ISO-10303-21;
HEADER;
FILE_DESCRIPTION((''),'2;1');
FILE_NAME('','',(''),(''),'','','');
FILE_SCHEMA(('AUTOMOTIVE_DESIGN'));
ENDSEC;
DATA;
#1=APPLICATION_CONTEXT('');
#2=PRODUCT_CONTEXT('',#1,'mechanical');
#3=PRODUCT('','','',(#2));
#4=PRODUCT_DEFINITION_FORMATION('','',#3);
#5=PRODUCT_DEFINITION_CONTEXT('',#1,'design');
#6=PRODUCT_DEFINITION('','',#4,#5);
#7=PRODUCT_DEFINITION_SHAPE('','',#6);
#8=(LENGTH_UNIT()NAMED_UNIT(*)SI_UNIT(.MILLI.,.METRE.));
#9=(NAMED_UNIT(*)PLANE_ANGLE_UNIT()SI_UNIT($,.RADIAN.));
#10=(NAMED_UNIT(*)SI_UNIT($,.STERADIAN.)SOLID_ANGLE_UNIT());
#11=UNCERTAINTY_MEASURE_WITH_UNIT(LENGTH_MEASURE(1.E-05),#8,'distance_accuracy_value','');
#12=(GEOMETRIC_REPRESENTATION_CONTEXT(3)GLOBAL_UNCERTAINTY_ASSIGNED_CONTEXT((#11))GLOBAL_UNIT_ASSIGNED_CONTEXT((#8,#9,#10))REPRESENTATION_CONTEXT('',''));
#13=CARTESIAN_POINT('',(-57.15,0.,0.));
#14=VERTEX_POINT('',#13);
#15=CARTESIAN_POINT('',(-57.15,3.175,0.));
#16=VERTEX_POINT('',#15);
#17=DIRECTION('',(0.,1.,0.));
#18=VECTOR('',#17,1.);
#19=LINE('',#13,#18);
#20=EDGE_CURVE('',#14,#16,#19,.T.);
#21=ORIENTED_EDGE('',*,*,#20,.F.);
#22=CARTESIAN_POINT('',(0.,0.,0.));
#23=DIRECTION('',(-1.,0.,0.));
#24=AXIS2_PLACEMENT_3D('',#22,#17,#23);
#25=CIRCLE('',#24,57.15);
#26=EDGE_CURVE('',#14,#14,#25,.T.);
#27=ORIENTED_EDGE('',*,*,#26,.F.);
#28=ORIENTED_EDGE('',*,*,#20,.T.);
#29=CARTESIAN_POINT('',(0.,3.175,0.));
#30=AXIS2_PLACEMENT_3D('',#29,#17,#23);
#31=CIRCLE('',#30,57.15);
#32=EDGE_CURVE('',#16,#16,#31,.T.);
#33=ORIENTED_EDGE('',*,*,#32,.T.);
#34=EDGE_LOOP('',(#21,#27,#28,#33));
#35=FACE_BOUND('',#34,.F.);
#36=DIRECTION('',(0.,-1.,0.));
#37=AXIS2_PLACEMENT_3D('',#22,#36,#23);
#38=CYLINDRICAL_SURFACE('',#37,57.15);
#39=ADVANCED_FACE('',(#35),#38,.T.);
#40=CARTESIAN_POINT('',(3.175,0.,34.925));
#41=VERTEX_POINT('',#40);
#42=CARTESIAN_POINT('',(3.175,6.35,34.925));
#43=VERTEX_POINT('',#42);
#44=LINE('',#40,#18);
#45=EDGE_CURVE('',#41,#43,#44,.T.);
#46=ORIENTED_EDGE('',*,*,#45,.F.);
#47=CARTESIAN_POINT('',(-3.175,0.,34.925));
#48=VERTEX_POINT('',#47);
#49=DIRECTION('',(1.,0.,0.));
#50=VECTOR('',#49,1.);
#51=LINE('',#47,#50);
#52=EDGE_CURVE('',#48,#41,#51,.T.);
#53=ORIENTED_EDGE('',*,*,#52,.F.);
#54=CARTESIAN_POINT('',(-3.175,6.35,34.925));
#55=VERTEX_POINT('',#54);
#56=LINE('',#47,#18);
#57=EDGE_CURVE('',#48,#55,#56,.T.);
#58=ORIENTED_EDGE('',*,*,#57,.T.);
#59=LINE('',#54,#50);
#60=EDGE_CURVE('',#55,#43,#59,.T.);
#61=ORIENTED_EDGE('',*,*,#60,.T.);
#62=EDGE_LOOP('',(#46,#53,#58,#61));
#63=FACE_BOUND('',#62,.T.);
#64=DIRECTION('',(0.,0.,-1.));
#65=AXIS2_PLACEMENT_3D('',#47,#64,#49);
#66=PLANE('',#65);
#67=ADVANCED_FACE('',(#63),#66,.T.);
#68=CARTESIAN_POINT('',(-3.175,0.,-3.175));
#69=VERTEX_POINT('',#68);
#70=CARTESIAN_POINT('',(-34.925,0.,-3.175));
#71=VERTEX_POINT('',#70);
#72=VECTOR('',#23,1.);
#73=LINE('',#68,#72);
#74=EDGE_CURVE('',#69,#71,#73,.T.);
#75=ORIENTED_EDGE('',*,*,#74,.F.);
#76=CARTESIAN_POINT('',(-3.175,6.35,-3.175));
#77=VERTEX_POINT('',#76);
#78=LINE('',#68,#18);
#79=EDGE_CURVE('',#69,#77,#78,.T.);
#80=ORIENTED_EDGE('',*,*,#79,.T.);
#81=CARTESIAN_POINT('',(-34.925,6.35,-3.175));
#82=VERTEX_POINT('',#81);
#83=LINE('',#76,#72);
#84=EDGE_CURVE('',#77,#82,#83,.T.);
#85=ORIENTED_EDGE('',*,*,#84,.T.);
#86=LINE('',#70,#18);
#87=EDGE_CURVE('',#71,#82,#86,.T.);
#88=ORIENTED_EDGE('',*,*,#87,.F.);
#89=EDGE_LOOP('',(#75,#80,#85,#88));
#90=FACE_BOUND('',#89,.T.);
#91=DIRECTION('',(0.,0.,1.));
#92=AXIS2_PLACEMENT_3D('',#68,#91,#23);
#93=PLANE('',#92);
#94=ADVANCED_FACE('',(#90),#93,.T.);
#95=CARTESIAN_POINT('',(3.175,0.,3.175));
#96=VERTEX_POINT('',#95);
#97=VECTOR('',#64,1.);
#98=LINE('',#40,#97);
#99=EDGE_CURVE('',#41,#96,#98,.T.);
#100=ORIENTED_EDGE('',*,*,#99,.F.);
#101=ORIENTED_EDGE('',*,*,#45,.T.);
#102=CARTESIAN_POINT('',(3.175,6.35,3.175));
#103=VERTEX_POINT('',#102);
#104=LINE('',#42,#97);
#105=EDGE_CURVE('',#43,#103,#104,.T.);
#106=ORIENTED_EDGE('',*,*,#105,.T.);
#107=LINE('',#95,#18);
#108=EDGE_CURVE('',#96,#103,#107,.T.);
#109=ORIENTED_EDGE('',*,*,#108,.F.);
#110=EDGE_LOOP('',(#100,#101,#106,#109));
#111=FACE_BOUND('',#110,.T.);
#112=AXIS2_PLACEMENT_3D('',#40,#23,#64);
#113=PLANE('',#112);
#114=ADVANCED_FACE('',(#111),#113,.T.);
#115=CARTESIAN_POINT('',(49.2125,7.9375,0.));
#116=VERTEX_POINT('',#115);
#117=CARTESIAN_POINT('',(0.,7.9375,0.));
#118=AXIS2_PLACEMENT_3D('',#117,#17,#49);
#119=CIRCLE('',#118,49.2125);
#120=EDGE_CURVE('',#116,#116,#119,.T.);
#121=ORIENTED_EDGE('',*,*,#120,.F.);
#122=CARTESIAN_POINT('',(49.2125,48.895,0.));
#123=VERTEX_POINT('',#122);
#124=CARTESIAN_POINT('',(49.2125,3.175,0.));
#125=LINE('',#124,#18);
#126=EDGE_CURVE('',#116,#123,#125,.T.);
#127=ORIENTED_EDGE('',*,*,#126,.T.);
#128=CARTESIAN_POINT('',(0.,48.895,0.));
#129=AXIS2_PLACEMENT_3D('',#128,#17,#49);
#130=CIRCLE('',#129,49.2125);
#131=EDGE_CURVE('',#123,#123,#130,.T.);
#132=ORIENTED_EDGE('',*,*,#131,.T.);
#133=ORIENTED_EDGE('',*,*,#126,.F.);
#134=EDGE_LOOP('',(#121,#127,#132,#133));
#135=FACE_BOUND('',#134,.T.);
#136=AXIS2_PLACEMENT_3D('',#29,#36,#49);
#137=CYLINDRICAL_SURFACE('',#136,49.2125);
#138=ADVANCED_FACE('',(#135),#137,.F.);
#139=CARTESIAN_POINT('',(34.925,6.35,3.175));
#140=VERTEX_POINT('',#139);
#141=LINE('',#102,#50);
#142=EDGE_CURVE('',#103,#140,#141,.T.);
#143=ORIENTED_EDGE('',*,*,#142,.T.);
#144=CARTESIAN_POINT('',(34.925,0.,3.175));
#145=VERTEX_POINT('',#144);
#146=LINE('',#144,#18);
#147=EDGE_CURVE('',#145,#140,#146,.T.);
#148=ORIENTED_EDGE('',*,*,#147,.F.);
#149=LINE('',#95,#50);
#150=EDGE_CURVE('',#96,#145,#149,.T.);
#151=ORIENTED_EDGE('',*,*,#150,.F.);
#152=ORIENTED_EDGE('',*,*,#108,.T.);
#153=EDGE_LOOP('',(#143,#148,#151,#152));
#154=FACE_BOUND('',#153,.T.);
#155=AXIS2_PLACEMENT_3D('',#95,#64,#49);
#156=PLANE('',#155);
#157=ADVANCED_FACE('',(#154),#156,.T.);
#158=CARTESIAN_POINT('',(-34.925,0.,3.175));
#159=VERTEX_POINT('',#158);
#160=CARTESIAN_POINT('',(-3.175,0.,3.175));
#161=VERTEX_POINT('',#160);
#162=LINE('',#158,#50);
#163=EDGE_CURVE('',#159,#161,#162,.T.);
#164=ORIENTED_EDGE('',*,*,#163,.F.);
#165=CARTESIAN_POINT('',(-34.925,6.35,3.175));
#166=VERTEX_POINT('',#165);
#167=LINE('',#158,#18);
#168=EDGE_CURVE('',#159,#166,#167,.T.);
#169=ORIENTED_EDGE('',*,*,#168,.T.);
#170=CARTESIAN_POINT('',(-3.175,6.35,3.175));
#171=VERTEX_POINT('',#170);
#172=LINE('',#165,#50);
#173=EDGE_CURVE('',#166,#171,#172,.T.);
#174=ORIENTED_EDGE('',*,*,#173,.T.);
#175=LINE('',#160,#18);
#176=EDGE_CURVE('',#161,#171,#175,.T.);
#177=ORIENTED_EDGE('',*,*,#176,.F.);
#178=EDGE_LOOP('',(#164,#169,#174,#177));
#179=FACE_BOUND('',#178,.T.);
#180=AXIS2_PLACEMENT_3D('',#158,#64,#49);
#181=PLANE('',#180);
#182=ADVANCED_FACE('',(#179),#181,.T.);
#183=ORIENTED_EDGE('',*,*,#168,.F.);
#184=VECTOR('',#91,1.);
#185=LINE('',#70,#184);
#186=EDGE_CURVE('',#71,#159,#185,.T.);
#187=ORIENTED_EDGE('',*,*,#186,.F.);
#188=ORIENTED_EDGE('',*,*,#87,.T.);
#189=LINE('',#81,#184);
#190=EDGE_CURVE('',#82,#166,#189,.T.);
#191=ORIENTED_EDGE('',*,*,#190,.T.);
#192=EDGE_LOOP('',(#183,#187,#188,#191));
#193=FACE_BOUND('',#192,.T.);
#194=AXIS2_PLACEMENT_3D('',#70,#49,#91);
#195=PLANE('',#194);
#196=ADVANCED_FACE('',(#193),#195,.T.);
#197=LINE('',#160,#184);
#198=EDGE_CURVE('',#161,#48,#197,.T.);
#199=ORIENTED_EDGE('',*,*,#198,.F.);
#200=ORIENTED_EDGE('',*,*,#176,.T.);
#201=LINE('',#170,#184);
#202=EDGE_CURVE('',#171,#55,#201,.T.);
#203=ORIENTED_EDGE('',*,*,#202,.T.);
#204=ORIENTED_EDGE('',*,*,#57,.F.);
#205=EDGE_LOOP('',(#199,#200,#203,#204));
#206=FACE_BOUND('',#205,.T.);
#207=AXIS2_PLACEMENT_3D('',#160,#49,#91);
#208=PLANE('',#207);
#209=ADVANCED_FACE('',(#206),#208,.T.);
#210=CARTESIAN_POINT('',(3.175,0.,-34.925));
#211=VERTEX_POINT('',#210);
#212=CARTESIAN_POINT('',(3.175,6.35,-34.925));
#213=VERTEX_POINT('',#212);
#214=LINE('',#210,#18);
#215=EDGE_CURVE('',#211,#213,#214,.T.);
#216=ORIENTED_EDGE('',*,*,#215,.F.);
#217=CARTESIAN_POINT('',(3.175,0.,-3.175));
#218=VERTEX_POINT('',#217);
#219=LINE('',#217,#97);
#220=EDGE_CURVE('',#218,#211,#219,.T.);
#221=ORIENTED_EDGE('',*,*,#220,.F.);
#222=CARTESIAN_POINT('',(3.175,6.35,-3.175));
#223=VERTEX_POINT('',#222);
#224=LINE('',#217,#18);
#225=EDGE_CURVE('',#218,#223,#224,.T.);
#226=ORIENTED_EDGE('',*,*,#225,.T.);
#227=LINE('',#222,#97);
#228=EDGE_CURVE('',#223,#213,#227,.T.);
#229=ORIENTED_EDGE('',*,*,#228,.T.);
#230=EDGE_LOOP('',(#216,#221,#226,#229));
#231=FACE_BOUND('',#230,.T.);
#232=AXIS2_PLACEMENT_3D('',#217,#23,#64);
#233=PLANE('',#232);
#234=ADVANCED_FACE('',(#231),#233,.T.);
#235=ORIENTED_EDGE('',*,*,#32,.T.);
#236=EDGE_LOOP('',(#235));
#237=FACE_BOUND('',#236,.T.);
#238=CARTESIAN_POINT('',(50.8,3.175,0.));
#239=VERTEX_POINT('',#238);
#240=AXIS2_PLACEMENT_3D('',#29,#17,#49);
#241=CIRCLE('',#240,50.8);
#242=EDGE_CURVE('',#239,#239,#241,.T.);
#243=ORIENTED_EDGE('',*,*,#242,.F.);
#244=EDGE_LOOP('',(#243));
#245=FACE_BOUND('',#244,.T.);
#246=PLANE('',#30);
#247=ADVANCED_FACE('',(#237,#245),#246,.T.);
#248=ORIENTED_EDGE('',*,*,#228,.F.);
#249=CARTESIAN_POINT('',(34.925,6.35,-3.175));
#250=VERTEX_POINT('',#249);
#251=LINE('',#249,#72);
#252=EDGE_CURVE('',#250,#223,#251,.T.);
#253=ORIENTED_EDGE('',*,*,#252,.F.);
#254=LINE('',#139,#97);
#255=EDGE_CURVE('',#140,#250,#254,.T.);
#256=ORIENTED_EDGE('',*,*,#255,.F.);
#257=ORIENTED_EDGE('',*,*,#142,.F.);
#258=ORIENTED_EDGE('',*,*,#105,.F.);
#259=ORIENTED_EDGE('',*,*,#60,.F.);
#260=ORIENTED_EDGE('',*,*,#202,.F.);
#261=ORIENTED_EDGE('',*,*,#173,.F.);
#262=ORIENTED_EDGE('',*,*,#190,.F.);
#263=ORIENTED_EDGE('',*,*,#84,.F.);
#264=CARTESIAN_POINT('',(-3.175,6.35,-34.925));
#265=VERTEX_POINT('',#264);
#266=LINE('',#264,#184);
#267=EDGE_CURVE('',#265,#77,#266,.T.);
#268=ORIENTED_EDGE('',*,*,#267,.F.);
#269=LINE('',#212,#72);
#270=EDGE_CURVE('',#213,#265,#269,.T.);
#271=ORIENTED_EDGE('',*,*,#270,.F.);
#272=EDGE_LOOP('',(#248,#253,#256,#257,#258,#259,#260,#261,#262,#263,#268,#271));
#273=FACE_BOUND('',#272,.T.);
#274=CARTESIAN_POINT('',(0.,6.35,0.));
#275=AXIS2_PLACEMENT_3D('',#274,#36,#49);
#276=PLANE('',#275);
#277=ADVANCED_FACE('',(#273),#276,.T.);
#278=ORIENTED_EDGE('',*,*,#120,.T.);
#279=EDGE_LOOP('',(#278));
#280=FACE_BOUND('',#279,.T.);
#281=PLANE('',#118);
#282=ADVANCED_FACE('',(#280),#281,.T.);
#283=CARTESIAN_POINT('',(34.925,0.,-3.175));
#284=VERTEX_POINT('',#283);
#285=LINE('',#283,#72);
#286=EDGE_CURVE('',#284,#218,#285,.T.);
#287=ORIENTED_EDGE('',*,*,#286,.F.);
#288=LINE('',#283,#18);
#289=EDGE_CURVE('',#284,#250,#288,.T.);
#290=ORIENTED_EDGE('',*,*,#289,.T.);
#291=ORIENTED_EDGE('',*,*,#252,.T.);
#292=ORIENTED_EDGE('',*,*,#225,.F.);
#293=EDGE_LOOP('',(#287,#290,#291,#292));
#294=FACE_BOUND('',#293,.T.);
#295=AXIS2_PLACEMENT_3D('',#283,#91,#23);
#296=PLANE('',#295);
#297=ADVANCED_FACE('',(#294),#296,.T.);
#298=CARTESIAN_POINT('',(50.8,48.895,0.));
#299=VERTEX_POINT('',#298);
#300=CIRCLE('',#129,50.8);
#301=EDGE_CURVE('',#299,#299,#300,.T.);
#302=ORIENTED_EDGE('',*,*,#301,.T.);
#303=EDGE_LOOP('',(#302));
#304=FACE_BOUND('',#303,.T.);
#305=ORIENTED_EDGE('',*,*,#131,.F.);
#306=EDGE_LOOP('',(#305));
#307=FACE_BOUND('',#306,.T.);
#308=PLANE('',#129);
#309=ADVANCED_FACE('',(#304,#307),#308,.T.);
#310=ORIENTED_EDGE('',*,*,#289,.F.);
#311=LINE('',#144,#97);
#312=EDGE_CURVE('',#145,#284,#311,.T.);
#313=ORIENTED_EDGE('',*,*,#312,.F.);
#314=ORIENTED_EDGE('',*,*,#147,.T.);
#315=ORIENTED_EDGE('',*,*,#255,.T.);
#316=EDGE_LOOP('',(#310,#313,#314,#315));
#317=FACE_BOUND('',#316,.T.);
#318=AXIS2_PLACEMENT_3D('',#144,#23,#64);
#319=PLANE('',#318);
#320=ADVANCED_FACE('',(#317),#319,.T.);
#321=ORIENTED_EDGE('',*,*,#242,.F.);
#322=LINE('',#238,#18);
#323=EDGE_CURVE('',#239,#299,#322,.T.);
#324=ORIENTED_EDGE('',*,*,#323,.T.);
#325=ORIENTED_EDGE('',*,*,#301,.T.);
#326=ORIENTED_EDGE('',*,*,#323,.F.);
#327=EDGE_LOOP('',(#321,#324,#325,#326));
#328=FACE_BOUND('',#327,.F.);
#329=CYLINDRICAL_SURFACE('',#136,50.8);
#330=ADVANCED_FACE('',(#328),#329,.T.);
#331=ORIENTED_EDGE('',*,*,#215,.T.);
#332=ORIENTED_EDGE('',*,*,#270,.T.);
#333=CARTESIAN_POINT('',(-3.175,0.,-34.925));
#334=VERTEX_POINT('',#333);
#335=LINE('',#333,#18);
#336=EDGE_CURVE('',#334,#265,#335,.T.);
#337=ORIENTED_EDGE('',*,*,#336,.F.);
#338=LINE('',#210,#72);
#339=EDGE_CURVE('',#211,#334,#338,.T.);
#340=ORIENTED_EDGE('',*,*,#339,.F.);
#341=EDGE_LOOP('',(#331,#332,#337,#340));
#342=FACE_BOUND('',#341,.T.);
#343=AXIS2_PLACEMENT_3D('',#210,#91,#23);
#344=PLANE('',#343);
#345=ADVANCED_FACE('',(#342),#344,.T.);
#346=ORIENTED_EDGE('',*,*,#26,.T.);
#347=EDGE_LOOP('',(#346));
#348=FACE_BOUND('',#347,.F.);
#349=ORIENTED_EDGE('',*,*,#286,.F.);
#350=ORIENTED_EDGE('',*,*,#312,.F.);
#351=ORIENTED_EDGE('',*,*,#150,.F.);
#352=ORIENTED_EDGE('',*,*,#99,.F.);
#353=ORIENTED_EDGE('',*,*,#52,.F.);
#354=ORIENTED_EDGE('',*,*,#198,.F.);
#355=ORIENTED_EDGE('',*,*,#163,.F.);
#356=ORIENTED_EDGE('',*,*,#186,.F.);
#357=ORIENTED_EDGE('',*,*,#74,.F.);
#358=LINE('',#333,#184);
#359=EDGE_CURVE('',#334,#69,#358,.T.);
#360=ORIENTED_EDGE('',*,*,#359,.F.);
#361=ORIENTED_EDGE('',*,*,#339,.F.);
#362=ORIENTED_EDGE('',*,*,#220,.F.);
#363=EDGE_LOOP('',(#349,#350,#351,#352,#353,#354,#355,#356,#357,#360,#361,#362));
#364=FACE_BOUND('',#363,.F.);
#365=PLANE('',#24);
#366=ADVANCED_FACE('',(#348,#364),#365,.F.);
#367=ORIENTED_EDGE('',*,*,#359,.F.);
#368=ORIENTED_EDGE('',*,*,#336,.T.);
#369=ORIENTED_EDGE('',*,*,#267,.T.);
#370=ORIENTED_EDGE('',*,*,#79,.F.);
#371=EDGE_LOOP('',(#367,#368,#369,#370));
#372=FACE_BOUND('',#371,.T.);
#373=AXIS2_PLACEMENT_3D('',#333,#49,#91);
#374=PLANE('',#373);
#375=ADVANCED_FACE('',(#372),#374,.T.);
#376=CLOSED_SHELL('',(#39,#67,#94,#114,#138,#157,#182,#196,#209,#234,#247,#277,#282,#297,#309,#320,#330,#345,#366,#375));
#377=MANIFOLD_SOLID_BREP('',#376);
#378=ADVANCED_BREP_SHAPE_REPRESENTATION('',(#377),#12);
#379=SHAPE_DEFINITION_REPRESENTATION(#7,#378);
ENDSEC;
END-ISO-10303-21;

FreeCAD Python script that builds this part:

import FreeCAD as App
import Part
import Sketcher
Q = App.Units.Quantity

doc = App.newDocument("Part")
body = doc.addObject("PartDesign::Body", "Body")

sketch1 = body.newObject("Sketcher::SketchObject", "Sketch")
sketch1.AttachmentSupport = (doc.getObject("XZ_Plane"), [""])
sketch1.MapMode = "FlatFace"
sketch1.addGeometry(Part.Circle(App.Vector(0, 0, 0), App.Vector(0, 0, 1), 57.15), False)
sketch1.addConstraint(Sketcher.Constraint("Coincident", 0, 3, -1, 1))
sketch1.addConstraint(Sketcher.Constraint("Diameter", 0, Q("4.5 in")))
pad1 = body.newObject("PartDesign::Pad", "Pad")
pad1.Profile = sketch1
pad1.Length = Q("0.125 in")
pad1.Reversed = True

sketch2 = body.newObject("Sketcher::SketchObject", "Sketch001")
sketch2.AttachmentSupport = (doc.getObject("XZ_Plane"), [""])
sketch2.MapMode = "FlatFace"
sketch2.AttachmentOffset = App.Placement(App.Vector(0, 0, -0.125 * 25.4), App.Rotation())
sketch2.addGeometry(Part.Circle(App.Vector(0, 0, 0), App.Vector(0, 0, 1), 50.8), False)
sketch2.addGeometry(Part.Circle(App.Vector(0, 0, 0), App.Vector(0, 0, 1), 49.2125), False)
sketch2.addConstraint(Sketcher.Constraint("Coincident", 0, 3, -1, 1))
sketch2.addConstraint(Sketcher.Constraint("Coincident", 1, 3, -1, 1))
sketch2.addConstraint(Sketcher.Constraint("Diameter", 0, Q("4 in")))
sketch2.addConstraint(Sketcher.Constraint("Diameter", 1, Q("3.875 in")))
pad2 = body.newObject("PartDesign::Pad", "Pad001")
pad2.Profile = sketch2
pad2.Length = Q("1.8 in")
pad2.Reversed = True

sketch3 = body.newObject("Sketcher::SketchObject", "Sketch002")
sketch3.AttachmentSupport = (doc.getObject("XZ_Plane"), [""])
sketch3.MapMode = "FlatFace"
sketch3.AttachmentOffset = App.Placement(App.Vector(0, 0, -0.125 * 25.4), App.Rotation())
sketch3.addGeometry(Part.Circle(App.Vector(0, 0, 0), App.Vector(0, 0, 1), 49.2125), False)
sketch3.addConstraint(Sketcher.Constraint("Coincident", 0, 3, -1, 1))
sketch3.addConstraint(Sketcher.Constraint("Diameter", 0, Q("3.875 in")))
pad3 = body.newObject("PartDesign::Pad", "Pad002")
pad3.Profile = sketch3
pad3.Length = Q("0.1875 in")
pad3.Reversed = True

sketch4 = body.newObject("Sketcher::SketchObject", "Sketch003")
sketch4.AttachmentSupport = (doc.getObject("XZ_Plane"), [""])
sketch4.MapMode = "FlatFace"
sketch4.addGeometry(Part.LineSegment(App.Vector(34.925, 3.175, 0), App.Vector(3.175, 3.175, 0)), False)
sketch4.addGeometry(Part.LineSegment(App.Vector(3.175, 3.175, 0), App.Vector(3.175, 34.925, 0)), False)
sketch4.addGeometry(Part.LineSegment(App.Vector(3.175, 34.925, 0), App.Vector(-3.175, 34.925, 0)), False)
sketch4.addGeometry(Part.LineSegment(App.Vector(-3.175, 34.925, 0), App.Vector(-3.175, 3.175, 0)), False)
sketch4.addGeometry(Part.LineSegment(App.Vector(-3.175, 3.175, 0), App.Vector(-34.925, 3.175, 0)), False)
sketch4.addGeometry(Part.LineSegment(App.Vector(-34.925, 3.175, 0), App.Vector(-34.925, -3.175, 0)), False)
sketch4.addGeometry(Part.LineSegment(App.Vector(-34.925, -3.175, 0), App.Vector(-3.175, -3.175, 0)), False)
sketch4.addGeometry(Part.LineSegment(App.Vector(-3.175, -3.175, 0), App.Vector(-3.175, -34.925, 0)), False)
sketch4.addGeometry(Part.LineSegment(App.Vector(-3.175, -34.925, 0), App.Vector(3.175, -34.925, 0)), False)
sketch4.addGeometry(Part.LineSegment(App.Vector(3.175, -34.925, 0), App.Vector(3.175, -3.175, 0)), False)
sketch4.addGeometry(Part.LineSegment(App.Vector(3.175, -3.175, 0), App.Vector(34.925, -3.175, 0)), False)
sketch4.addGeometry(Part.LineSegment(App.Vector(34.925, -3.175, 0), App.Vector(34.925, 3.175, 0)), False)
sketch4.addConstraint(Sketcher.Constraint("Coincident", 0, 2, 1, 1))
sketch4.addConstraint(Sketcher.Constraint("Coincident", 1, 2, 2, 1))
sketch4.addConstraint(Sketcher.Constraint("Coincident", 2, 2, 3, 1))
sketch4.addConstraint(Sketcher.Constraint("Coincident", 3, 2, 4, 1))
sketch4.addConstraint(Sketcher.Constraint("Coincident", 4, 2, 5, 1))
sketch4.addConstraint(Sketcher.Constraint("Coincident", 5, 2, 6, 1))
sketch4.addConstraint(Sketcher.Constraint("Coincident", 6, 2, 7, 1))
sketch4.addConstraint(Sketcher.Constraint("Coincident", 7, 2, 8, 1))
sketch4.addConstraint(Sketcher.Constraint("Coincident", 8, 2, 9, 1))
sketch4.addConstraint(Sketcher.Constraint("Coincident", 9, 2, 10, 1))
sketch4.addConstraint(Sketcher.Constraint("Coincident", 10, 2, 11, 1))
sketch4.addConstraint(Sketcher.Constraint("Coincident", 11, 2, 0, 1))
sketch4.addConstraint(Sketcher.Constraint("Horizontal", 0))
sketch4.addConstraint(Sketcher.Constraint("Vertical", 1))
sketch4.addConstraint(Sketcher.Constraint("Horizontal", 2))
sketch4.addConstraint(Sketcher.Constraint("Vertical", 3))
sketch4.addConstraint(Sketcher.Constraint("Horizontal", 4))
sketch4.addConstraint(Sketcher.Constraint("Vertical", 5))
sketch4.addConstraint(Sketcher.Constraint("Horizontal", 6))
sketch4.addConstraint(Sketcher.Constraint("Vertical", 7))
sketch4.addConstraint(Sketcher.Constraint("Horizontal", 8))
sketch4.addConstraint(Sketcher.Constraint("Vertical", 9))
sketch4.addConstraint(Sketcher.Constraint("Horizontal", 10))
sketch4.addConstraint(Sketcher.Constraint("Vertical", 11))
sketch4.addConstraint(Sketcher.Constraint("Symmetric", 0, 2, 6, 2, -1, 1))
sketch4.addConstraint(Sketcher.Constraint("Symmetric", 2, 2, 8, 2, -1, 1))
sketch4.addConstraint(Sketcher.Constraint("Symmetric", 4, 2, 10, 2, -1, 1))
sketch4.addConstraint(Sketcher.Constraint("Symmetric", 0, 2, 3, 2, -2))
sketch4.addConstraint(Sketcher.Constraint("Equal", 10, 1))
sketch4.addConstraint(Sketcher.Constraint("Equal", 8, 5))
sketch4.addConstraint(Sketcher.Constraint("DistanceX", 0, 2, 0, 1, Q("1.25 in")))
sketch4.addConstraint(Sketcher.Constraint("DistanceX", 2, 2, 2, 1, Q("0.25 in")))
pocket1 = body.newObject("PartDesign::Pocket", "Pocket")
pocket1.Profile = sketch4
pocket1.Length = Q("0.25 in")

doc.recompute()
